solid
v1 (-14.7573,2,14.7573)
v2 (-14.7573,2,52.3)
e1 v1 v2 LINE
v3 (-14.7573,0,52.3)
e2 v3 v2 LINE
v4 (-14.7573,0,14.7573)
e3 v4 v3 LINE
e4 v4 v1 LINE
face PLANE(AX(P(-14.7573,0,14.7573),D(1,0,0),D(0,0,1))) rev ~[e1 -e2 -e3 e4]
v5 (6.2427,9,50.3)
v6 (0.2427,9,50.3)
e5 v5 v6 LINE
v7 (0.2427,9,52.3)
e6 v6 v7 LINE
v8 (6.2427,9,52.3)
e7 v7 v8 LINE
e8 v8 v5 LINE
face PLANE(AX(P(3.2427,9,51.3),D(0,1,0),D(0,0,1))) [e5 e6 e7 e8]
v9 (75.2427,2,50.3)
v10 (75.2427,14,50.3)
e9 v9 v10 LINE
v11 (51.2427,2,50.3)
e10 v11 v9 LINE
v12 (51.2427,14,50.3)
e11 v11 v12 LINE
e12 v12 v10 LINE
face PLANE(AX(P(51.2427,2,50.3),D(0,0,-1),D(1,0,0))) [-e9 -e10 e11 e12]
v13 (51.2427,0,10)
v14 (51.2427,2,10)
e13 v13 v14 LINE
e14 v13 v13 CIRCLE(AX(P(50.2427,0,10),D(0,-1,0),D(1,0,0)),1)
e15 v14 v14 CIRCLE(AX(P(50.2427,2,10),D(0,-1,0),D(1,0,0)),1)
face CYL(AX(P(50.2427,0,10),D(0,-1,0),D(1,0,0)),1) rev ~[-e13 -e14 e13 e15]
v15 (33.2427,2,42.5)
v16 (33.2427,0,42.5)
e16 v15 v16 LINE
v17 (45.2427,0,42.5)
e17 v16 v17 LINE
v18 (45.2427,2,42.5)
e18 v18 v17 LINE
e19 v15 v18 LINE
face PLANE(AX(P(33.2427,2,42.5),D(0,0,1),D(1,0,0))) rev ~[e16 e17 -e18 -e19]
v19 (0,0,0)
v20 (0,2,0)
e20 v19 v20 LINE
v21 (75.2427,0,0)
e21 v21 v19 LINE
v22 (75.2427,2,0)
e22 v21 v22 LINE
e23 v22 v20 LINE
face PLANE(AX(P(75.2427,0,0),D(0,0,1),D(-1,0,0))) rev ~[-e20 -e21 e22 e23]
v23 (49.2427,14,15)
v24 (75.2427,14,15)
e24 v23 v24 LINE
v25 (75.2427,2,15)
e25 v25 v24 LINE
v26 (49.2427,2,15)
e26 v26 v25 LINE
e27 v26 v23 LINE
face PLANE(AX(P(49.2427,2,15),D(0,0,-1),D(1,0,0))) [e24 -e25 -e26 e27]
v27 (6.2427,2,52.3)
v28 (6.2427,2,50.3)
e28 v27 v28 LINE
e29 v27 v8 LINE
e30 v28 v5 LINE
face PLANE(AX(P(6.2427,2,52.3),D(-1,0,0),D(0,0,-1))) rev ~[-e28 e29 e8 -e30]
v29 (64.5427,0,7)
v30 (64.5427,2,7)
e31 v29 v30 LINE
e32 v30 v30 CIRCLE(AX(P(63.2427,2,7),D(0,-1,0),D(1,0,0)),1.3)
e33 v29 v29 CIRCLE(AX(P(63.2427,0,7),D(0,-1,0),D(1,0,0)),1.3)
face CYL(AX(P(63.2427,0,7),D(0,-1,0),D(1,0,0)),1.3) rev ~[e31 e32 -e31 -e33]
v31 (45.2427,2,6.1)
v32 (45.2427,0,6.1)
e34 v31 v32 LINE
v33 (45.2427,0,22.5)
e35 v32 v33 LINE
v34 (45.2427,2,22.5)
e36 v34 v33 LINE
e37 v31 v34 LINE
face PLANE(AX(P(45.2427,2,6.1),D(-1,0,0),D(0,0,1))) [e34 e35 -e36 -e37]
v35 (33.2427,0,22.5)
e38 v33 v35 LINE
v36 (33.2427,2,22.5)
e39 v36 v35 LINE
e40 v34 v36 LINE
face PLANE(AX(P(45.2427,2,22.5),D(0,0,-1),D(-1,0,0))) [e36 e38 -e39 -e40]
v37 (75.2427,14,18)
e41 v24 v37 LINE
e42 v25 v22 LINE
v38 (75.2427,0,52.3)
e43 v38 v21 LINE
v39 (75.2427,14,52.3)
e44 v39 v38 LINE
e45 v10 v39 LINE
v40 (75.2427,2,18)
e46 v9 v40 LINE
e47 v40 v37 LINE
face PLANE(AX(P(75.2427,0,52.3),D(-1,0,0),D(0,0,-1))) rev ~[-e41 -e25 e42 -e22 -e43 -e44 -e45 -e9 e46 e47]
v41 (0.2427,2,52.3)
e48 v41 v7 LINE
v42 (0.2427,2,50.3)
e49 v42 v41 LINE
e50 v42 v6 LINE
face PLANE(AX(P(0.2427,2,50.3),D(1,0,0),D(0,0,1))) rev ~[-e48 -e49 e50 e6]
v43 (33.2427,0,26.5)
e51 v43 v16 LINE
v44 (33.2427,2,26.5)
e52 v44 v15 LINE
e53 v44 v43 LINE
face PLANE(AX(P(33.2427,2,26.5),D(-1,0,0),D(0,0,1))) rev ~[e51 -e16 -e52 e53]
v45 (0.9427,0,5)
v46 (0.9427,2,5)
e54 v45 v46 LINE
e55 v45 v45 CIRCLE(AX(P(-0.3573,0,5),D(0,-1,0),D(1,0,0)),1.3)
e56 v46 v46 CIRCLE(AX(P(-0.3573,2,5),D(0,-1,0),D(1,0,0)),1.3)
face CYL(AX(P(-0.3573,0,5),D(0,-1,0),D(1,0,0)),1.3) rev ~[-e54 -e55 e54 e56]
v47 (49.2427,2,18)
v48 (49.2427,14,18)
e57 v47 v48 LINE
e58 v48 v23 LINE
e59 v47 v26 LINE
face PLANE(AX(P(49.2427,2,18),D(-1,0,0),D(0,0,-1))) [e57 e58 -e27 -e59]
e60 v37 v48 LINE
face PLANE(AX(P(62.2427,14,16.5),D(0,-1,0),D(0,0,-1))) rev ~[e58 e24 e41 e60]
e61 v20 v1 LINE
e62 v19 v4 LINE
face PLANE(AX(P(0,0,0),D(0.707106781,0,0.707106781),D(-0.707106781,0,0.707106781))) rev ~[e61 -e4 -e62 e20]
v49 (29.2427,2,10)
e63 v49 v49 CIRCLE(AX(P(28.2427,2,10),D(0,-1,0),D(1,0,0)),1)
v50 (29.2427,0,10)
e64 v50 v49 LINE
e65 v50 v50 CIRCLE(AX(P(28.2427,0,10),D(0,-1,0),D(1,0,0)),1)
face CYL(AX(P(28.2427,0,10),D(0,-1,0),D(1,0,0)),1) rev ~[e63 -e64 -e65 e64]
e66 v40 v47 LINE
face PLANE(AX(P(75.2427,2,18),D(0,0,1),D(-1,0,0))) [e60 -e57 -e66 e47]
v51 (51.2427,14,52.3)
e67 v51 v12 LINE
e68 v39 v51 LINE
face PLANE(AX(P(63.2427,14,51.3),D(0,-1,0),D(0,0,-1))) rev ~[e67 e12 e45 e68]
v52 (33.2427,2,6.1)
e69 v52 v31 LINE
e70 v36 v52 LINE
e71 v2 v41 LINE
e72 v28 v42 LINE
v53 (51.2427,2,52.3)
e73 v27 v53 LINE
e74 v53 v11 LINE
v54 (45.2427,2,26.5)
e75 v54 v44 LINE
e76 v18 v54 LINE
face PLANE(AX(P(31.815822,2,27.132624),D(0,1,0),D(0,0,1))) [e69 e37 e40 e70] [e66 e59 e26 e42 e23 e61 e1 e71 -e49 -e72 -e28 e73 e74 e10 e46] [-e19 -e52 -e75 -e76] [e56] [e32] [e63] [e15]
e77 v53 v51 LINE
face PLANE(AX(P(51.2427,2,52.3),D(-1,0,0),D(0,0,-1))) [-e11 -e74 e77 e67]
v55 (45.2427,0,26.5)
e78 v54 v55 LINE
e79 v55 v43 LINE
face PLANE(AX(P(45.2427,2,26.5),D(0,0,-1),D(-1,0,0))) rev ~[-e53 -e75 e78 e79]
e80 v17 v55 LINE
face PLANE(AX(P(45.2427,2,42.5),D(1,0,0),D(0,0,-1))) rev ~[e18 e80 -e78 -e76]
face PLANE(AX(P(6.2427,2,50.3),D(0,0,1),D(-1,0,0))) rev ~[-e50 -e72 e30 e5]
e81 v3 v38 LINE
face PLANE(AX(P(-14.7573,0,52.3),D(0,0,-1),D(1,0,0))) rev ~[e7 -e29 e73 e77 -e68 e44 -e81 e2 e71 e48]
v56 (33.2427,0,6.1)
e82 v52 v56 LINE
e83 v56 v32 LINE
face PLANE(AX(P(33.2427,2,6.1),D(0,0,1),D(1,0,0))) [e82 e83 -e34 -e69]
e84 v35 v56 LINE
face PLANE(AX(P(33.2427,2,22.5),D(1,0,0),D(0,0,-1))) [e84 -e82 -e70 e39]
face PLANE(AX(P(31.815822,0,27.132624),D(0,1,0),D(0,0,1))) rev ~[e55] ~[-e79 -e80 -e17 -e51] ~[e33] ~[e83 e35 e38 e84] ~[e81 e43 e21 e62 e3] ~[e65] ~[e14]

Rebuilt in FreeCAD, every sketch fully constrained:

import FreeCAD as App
import Part
import Sketcher
Q = App.Units.Quantity


def add_polygon(sketch, points):
    """Adds a closed chain of lines whose ends are joined by coincident constraints."""
    first, n = sketch.GeometryCount, len(points)
    for a, b in zip(points, points[1:] + points[:1]):
        sketch.addGeometry(Part.LineSegment(App.Vector(*a, 0), App.Vector(*b, 0)), False)
    for i in range(n):
        sketch.addConstraint(Sketcher.Constraint("Coincident", first + i, 2, first + (i + 1) % n, 1))

doc = App.newDocument("Part")
params = doc.addObject("Spreadsheet::Sheet", "Params")
for row, (alias, value) in enumerate([
    ("sketch1_width", "90 mm"),
    ("sketch1_height", "52.3 mm"),
    ("pad1_length", "2 mm"),
    ("sketch2_width", "12 mm"),
    ("sketch2_height", "16.4 mm"),
    ("sketch3_width", "12 mm"),
    ("sketch3_height", "16 mm"),
    ("sketch4_width", "26 mm"),
    ("sketch4_height", "3 mm"),
    ("pad2_length", "12 mm"),
    ("sketch5_width", "24 mm"),
    ("sketch5_height", "2 mm"),
    ("pad3_length", "12 mm"),
    ("sketch6_width", "6 mm"),
    ("sketch6_height", "2 mm"),
    ("pad4_length", "7 mm"),
    ("sketch7_diameter", "2 mm"),
    ("sketch8_diameter", "2.6 mm"),
    ("sketch9_diameter", "2.6 mm"),
], start=1):
    params.set(f"A{row}", alias)
    params.set(f"B{row}", "=" + value)
    params.setAlias(f"B{row}", alias)

body = doc.addObject("PartDesign::Body", "Body")

sketch1 = body.newObject("Sketcher::SketchObject", "Sketch")
sketch1.AttachmentSupport = (doc.getObject("XZ_Plane"), [""])
sketch1.MapMode = "FlatFace"
add_polygon(sketch1, [(0, 0), (75, 0), (75, 52), (-15, 52), (-15, 15)])
sketch1.addConstraint([
    Sketcher.Constraint("Horizontal", 0),
    Sketcher.Constraint("Vertical", 1),
    Sketcher.Constraint("Horizontal", 2),
    Sketcher.Constraint("Vertical", 3),
    Sketcher.Constraint("Coincident", 4, 2, -1, 1),
    Sketcher.Constraint("DistanceX", 2, 2, 2, 1, Q("90 mm")),
    Sketcher.Constraint("Angle", 4, Q("-45 deg")),
    Sketcher.Constraint("DistanceY", 1, 1, 1, 2, Q("52.3 mm")),
    Sketcher.Constraint("DistanceX", 2, 2, -1, 1, Q("14.7573 mm")),
])
sketch1.setExpression("Constraints[10]", "Params.sketch1_width")
sketch1.setExpression("Constraints[12]", "Params.sketch1_height")
pad1 = body.newObject("PartDesign::Pad", "Pad")
pad1.Profile = sketch1
pad1.setExpression("Length", "Params.pad1_length")
pad1.Reversed = True

sketch2 = body.newObject("Sketcher::SketchObject", "Sketch001")
sketch2.AttachmentSupport = (doc.getObject("XZ_Plane"), [""])
sketch2.MapMode = "FlatFace"
sketch2.AttachmentOffset = App.Placement(App.Vector(0, 0, -2), App.Rotation())
add_polygon(sketch2, [(33, 22), (45, 22), (45, 6), (33, 6)])
sketch2.addConstraint([
    Sketcher.Constraint("Horizontal", 0),
    Sketcher.Constraint("Vertical", 1),
    Sketcher.Constraint("Horizontal", 2),
    Sketcher.Constraint("Vertical", 3),
    Sketcher.Constraint("DistanceX", 0, 1, 0, 2, Q("12 mm")),
    Sketcher.Constraint("DistanceY", 1, 2, 1, 1, Q("16.4 mm")),
    Sketcher.Constraint("DistanceY", -1, 1, 0, 2, Q("22.5 mm")),
    Sketcher.Constraint("DistanceX", -1, 1, 0, 2, Q("45.2427 mm")),
])
sketch2.setExpression("Constraints[8]", "Params.sketch2_width")
sketch2.setExpression("Constraints[9]", "Params.sketch2_height")
pocket1 = body.newObject("PartDesign::Pocket", "Pocket")
pocket1.Profile = sketch2
pocket1.Type = "ThroughAll"
pocket1.Reversed = True

sketch3 = body.newObject("Sketcher::SketchObject", "Sketch002")
sketch3.AttachmentSupport = (doc.getObject("XZ_Plane"), [""])
sketch3.MapMode = "FlatFace"
sketch3.AttachmentOffset = App.Placement(App.Vector(0, 0, -2), App.Rotation())
add_polygon(sketch3, [(45, 42), (45, 26), (33, 26), (33, 42)])
sketch3.addConstraint([
    Sketcher.Constraint("Vertical", 0),
    Sketcher.Constraint("Horizontal", 1),
    Sketcher.Constraint("Vertical", 2),
    Sketcher.Constraint("Horizontal", 3),
    Sketcher.Constraint("DistanceX", 1, 2, 1, 1, Q("12 mm")),
    Sketcher.Constraint("DistanceY", 0, 2, 0, 1, Q("16 mm")),
    Sketcher.Constraint("DistanceY", -1, 1, 0, 2, Q("26.5 mm")),
    Sketcher.Constraint("DistanceX", -1, 1, 0, 2, Q("45.2427 mm")),
])
sketch3.setExpression("Constraints[8]", "Params.sketch3_width")
sketch3.setExpression("Constraints[9]", "Params.sketch3_height")
pocket2 = body.newObject("PartDesign::Pocket", "Pocket001")
pocket2.Profile = sketch3
pocket2.Type = "ThroughAll"
pocket2.Reversed = True

sketch4 = body.newObject("Sketcher::SketchObject", "Sketch003")
sketch4.AttachmentSupport = (doc.getObject("XZ_Plane"), [""])
sketch4.MapMode = "FlatFace"
sketch4.AttachmentOffset = App.Placement(App.Vector(0, 0, -2), App.Rotation())
add_polygon(sketch4, [(49.2, 18), (75.2, 18), (75.2, 15), (49.2, 15)])
sketch4.addConstraint([
    Sketcher.Constraint("Horizontal", 0),
    Sketcher.Constraint("Vertical", 1),
    Sketcher.Constraint("Horizontal", 2),
    Sketcher.Constraint("Vertical", 3),
    Sketcher.Constraint("DistanceX", 0, 1, 0, 2, Q("26 mm")),
    Sketcher.Constraint("DistanceY", 1, 2, 1, 1, Q("3 mm")),
    Sketcher.Constraint("DistanceY", -1, 1, 0, 2, Q("18 mm")),
    Sketcher.Constraint("DistanceX", -1, 1, 0, 2, Q("75.2427 mm")),
])
sketch4.setExpression("Constraints[8]", "Params.sketch4_width")
sketch4.setExpression("Constraints[9]", "Params.sketch4_height")
pad2 = body.newObject("PartDesign::Pad", "Pad001")
pad2.Profile = sketch4
pad2.setExpression("Length", "Params.pad2_length")
pad2.Reversed = True

sketch5 = body.newObject("Sketcher::SketchObject", "Sketch004")
sketch5.AttachmentSupport = (doc.getObject("XZ_Plane"), [""])
sketch5.MapMode = "FlatFace"
sketch5.AttachmentOffset = App.Placement(App.Vector(0, 0, -2), App.Rotation())
add_polygon(sketch5, [(51.2, 52.3), (75.2, 52.3), (75.2, 50.3), (51.2, 50.3)])
sketch5.addConstraint([
    Sketcher.Constraint("Horizontal", 0),
    Sketcher.Constraint("Vertical", 1),
    Sketcher.Constraint("Horizontal", 2),
    Sketcher.Constraint("Vertical", 3),
    Sketcher.Constraint("DistanceX", 0, 1, 0, 2, Q("24 mm")),
    Sketcher.Constraint("DistanceY", 1, 2, 1, 1, Q("2 mm")),
    Sketcher.Constraint("DistanceY", -1, 1, 0, 2, Q("52.3 mm")),
    Sketcher.Constraint("DistanceX", -1, 1, 0, 2, Q("75.2427 mm")),
])
sketch5.setExpression("Constraints[8]", "Params.sketch5_width")
sketch5.setExpression("Constraints[9]", "Params.sketch5_height")
pad3 = body.newObject("PartDesign::Pad", "Pad002")
pad3.Profile = sketch5
pad3.setExpression("Length", "Params.pad3_length")
pad3.Reversed = True

sketch6 = body.newObject("Sketcher::SketchObject", "Sketch005")
sketch6.AttachmentSupport = (doc.getObject("XZ_Plane"), [""])
sketch6.MapMode = "FlatFace"
sketch6.AttachmentOffset = App.Placement(App.Vector(0, 0, -2), App.Rotation())
add_polygon(sketch6, [(0.2, 50.3), (0.2, 52.3), (6.2, 52.3), (6.2, 50.3)])
sketch6.addConstraint([
    Sketcher.Constraint("Vertical", 0),
    Sketcher.Constraint("Horizontal", 1),
    Sketcher.Constraint("Vertical", 2),
    Sketcher.Constraint("Horizontal", 3),
    Sketcher.Constraint("DistanceX", 1, 1, 1, 2, Q("6 mm")),
    Sketcher.Constraint("DistanceY", 0, 1, 0, 2, Q("2 mm")),
    Sketcher.Constraint("DistanceY", -1, 1, 0, 2, Q("52.3 mm")),
    Sketcher.Constraint("DistanceX", -1, 1, 0, 2, Q("0.2427 mm")),
])
sketch6.setExpression("Constraints[8]", "Params.sketch6_width")
sketch6.setExpression("Constraints[9]", "Params.sketch6_height")
pad4 = body.newObject("PartDesign::Pad", "Pad003")
pad4.Profile = sketch6
pad4.setExpression("Length", "Params.pad4_length")
pad4.Reversed = True

sketch7 = body.newObject("Sketcher::SketchObject", "Sketch006")
sketch7.AttachmentSupport = (doc.getObject("XZ_Plane"), [""])
sketch7.MapMode = "FlatFace"
sketch7.addGeometry([
    Part.Circle(App.Vector(28.2, 10, 0), App.Vector(0, 0, 1), 1),
    Part.Circle(App.Vector(50.2, 10, 0), App.Vector(0, 0, 1), 1),
], False)
sketch7.addConstraint([
    Sketcher.Constraint("Equal", 0, 1),
    Sketcher.Constraint("Horizontal", 0, 3, 1, 3),
    Sketcher.Constraint("Diameter", 0, Q("2 mm")),
    Sketcher.Constraint("DistanceY", -1, 1, 0, 3, Q("10 mm")),
    Sketcher.Constraint("DistanceX", 0, 3, 1, 3, Q("22 mm")),
    Sketcher.Constraint("DistanceX", -1, 1, 0, 3, Q("28.2427 mm")),
])
sketch7.setExpression("Constraints[2]", "Params.sketch7_diameter")
pocket3 = body.newObject("PartDesign::Pocket", "Pocket002")
pocket3.Profile = sketch7
pocket3.Type = "ThroughAll"

sketch8 = body.newObject("Sketcher::SketchObject", "Sketch007")
sketch8.AttachmentSupport = (doc.getObject("XZ_Plane"), [""])
sketch8.MapMode = "FlatFace"
sketch8.addGeometry(Part.Circle(App.Vector(63.2, 7, 0), App.Vector(0, 0, 1), 1.3), False)
sketch8.addConstraint([
    Sketcher.Constraint("Diameter", 0, Q("2.6 mm")),
    Sketcher.Constraint("DistanceY", -1, 1, 0, 3, Q("7 mm")),
    Sketcher.Constraint("DistanceX", -1, 1, 0, 3, Q("63.2427 mm")),
])
sketch8.setExpression("Constraints[0]", "Params.sketch8_diameter")
pocket4 = body.newObject("PartDesign::Pocket", "Pocket003")
pocket4.Profile = sketch8
pocket4.Type = "ThroughAll"

sketch9 = body.newObject("Sketcher::SketchObject", "Sketch008")
sketch9.AttachmentSupport = (doc.getObject("XZ_Plane"), [""])
sketch9.MapMode = "FlatFace"
sketch9.addGeometry(Part.Circle(App.Vector(-0.4, 5, 0), App.Vector(0, 0, 1), 1.3), False)
sketch9.addConstraint([
    Sketcher.Constraint("Diameter", 0, Q("2.6 mm")),
    Sketcher.Constraint("DistanceY", -1, 1, 0, 3, Q("5 mm")),
    Sketcher.Constraint("DistanceX", 0, 3, -1, 1, Q("0.3573 mm")),
])
sketch9.setExpression("Constraints[0]", "Params.sketch9_diameter")
pocket5 = body.newObject("PartDesign::Pocket", "Pocket004")
pocket5.Profile = sketch9
pocket5.Type = "ThroughAll"

doc.recompute()
